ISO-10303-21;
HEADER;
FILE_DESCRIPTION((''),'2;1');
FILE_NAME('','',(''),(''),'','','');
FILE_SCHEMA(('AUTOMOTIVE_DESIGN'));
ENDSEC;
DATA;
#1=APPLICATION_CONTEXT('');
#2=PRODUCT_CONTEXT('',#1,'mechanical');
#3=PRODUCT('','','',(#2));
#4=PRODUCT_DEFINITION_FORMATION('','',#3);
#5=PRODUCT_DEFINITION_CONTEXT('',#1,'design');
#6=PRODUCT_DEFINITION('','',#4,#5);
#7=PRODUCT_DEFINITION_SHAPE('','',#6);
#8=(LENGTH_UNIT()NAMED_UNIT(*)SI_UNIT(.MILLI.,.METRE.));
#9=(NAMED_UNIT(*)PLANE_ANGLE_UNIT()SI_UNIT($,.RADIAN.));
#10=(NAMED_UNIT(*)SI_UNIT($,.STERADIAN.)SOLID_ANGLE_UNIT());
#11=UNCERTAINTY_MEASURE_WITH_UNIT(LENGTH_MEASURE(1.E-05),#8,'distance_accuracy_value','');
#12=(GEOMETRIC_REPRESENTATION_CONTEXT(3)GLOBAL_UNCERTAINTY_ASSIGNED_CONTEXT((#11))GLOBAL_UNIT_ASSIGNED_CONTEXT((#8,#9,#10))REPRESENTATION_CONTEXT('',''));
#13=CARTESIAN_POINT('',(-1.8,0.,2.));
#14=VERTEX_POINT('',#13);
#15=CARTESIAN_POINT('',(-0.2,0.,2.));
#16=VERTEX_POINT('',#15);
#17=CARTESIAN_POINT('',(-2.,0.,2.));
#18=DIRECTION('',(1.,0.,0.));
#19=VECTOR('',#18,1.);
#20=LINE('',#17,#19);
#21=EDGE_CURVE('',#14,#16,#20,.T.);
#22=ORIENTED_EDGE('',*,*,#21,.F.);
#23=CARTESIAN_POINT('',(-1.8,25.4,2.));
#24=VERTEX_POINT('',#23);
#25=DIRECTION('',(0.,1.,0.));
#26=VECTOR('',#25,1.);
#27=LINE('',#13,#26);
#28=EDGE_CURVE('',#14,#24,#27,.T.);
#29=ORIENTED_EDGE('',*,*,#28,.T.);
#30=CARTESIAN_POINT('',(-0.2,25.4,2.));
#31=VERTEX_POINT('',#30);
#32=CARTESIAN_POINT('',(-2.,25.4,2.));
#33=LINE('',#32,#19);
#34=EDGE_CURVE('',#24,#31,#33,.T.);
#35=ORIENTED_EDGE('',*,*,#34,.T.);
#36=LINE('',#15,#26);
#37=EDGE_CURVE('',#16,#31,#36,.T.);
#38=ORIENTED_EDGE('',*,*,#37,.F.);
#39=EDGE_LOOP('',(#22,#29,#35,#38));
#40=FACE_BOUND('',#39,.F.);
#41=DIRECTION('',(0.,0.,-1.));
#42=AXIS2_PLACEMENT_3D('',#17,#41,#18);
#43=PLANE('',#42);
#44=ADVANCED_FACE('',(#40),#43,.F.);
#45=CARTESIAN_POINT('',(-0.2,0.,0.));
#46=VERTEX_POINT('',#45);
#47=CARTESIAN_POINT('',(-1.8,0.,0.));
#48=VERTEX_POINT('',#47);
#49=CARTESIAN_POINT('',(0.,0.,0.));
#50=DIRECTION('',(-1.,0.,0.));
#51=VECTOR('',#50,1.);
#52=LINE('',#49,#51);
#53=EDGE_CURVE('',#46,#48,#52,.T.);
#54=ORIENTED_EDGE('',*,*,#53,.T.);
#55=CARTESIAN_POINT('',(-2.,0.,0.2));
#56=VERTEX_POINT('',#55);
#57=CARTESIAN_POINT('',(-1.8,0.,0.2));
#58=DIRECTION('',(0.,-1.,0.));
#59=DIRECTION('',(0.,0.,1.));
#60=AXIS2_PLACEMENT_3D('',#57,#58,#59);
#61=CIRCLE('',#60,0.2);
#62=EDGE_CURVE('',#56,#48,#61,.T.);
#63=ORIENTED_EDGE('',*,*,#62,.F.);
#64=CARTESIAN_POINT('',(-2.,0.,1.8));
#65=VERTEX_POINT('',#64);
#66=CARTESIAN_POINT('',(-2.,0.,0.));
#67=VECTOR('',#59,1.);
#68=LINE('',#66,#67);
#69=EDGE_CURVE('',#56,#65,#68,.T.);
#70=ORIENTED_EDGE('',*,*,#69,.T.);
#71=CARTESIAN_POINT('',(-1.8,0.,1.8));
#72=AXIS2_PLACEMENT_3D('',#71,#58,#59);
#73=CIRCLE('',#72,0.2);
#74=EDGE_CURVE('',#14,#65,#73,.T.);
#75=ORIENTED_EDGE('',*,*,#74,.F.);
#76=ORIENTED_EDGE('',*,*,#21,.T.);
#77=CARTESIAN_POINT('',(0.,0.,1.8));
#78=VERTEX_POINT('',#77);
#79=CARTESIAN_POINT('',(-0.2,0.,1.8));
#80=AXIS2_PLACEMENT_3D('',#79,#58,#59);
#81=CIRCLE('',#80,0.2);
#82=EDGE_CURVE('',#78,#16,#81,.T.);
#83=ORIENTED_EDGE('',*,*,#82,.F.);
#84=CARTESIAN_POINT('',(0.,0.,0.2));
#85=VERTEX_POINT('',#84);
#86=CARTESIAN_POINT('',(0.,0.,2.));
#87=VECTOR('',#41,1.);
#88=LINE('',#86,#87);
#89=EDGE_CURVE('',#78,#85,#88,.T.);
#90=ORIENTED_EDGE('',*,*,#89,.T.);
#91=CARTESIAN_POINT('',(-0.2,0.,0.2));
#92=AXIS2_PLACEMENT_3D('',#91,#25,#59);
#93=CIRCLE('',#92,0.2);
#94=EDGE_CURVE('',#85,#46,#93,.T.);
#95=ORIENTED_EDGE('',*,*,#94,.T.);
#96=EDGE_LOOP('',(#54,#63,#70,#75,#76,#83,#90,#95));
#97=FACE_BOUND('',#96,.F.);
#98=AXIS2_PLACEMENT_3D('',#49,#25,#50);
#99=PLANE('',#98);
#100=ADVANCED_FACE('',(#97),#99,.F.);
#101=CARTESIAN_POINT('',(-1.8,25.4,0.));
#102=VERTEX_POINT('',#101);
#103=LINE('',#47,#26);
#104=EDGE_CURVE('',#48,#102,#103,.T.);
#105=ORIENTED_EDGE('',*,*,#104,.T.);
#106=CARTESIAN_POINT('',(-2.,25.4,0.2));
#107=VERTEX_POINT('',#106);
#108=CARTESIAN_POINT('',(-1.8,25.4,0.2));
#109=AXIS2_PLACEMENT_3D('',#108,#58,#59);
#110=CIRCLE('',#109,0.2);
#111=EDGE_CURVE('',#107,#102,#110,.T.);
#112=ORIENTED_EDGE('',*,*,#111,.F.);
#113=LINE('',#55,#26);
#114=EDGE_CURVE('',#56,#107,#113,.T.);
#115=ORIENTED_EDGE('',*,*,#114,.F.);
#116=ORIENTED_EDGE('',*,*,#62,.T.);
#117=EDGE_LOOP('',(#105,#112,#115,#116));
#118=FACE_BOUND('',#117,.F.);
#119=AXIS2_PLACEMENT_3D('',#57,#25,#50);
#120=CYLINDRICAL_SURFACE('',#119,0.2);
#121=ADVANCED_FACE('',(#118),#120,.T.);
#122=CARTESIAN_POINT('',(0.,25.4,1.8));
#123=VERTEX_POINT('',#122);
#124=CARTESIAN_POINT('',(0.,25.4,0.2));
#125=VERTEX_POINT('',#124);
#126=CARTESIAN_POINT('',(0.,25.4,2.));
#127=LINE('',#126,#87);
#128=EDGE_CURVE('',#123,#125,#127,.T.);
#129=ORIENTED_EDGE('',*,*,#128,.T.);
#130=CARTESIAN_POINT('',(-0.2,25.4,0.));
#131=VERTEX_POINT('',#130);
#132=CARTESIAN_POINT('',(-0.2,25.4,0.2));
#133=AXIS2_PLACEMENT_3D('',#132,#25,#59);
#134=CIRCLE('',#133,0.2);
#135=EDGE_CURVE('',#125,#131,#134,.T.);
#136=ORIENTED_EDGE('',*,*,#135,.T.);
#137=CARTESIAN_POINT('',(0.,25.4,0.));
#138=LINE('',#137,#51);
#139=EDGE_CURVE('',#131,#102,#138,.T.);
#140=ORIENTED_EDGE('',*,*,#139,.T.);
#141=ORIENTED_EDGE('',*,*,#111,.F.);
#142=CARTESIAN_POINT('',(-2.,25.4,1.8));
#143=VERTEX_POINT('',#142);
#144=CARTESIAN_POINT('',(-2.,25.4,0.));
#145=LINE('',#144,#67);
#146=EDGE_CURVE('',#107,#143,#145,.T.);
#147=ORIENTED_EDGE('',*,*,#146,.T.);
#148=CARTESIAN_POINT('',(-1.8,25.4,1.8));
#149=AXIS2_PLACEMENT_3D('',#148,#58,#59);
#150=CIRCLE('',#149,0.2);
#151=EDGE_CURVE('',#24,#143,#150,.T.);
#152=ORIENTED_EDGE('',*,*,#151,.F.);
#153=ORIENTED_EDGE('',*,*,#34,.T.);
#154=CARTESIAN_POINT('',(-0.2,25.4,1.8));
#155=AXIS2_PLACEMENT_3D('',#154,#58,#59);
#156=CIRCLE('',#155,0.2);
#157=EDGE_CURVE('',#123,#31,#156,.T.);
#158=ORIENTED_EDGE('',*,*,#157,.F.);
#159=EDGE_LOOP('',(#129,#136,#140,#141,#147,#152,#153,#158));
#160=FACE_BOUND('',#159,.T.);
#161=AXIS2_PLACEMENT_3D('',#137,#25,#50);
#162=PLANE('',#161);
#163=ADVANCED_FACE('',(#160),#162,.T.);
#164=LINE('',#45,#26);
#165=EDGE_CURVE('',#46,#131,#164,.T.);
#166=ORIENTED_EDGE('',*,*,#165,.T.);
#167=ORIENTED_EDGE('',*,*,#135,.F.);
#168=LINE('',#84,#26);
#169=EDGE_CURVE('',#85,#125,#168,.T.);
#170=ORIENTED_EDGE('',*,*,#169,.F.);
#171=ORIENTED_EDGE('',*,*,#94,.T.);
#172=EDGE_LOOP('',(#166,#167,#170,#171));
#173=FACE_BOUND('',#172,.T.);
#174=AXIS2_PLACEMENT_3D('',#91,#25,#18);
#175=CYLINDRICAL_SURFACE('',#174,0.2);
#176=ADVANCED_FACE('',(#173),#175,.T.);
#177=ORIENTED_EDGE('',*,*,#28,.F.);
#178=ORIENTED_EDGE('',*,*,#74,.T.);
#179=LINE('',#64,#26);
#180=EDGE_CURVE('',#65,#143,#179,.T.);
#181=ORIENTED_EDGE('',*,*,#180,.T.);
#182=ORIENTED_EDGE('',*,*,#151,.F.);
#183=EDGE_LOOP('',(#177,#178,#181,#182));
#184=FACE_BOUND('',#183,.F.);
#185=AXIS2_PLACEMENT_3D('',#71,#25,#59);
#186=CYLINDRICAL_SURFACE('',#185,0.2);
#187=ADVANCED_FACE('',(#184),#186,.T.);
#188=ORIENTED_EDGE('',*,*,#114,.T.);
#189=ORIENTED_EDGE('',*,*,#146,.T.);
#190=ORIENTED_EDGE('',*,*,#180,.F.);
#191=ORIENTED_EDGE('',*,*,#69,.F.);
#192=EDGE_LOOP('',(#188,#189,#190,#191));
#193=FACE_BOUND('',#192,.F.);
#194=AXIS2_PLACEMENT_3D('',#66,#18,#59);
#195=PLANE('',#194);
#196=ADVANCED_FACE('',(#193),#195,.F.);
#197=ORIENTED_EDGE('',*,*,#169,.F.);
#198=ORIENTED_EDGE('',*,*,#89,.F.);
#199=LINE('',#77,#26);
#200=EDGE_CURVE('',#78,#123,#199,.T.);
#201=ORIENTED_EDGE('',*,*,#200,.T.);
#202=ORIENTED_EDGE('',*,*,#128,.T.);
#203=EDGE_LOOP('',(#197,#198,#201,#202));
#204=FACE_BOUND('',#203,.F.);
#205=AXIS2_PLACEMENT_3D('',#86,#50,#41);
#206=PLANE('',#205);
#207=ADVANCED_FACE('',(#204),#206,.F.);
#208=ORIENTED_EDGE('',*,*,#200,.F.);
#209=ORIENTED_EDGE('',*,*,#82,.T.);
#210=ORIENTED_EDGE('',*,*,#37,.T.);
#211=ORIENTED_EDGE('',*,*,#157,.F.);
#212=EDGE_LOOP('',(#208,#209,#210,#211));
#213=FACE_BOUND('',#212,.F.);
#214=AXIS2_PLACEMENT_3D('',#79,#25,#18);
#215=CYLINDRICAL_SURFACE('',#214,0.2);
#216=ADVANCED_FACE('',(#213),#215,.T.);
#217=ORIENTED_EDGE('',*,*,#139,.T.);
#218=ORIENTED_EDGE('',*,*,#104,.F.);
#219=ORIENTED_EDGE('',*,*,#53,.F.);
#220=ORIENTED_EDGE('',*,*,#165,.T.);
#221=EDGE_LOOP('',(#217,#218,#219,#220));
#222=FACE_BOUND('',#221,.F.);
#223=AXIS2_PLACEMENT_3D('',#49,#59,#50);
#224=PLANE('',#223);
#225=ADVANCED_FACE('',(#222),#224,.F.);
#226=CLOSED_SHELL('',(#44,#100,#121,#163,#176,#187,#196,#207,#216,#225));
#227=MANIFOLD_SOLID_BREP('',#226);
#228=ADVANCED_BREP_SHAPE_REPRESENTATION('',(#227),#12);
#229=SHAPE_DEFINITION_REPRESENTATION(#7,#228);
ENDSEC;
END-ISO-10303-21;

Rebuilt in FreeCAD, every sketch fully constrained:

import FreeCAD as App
import Part
import Sketcher
from FreeCAD import Vector
Q = App.Units.Quantity


def edges_at(feature, points):
    """Names of the edges that pass closest to the given points."""
    edges = feature.Shape.Edges
    near = lambda p: min(range(len(edges)), key=lambda i: edges[i].distToShape(Part.Vertex(*p))[0])
    return sorted({f"Edge{near(p) + 1}" for p in points})


def add_polygon(sketch, points):
    """Adds a closed chain of lines whose ends are joined by coincident constraints."""
    first, n = sketch.GeometryCount, len(points)
    for a, b in zip(points, points[1:] + points[:1]):
        sketch.addGeometry(Part.LineSegment(App.Vector(*a, 0), App.Vector(*b, 0)), False)
    for i in range(n):
        sketch.addConstraint(Sketcher.Constraint("Coincident", first + i, 2, first + (i + 1) % n, 1))

doc = App.newDocument("Part")
body = doc.addObject("PartDesign::Body", "Body")

sketch1 = body.newObject("Sketcher::SketchObject", "Sketch")
sketch1.AttachmentSupport = (doc.getObject("XZ_Plane"), [""])
sketch1.MapMode = "FlatFace"
add_polygon(sketch1, [(0, 2), (0, 0), (-2, 0), (-2, 2)])
sketch1.addConstraint([
    Sketcher.Constraint("Vertical", 0),
    Sketcher.Constraint("Horizontal", 1),
    Sketcher.Constraint("Vertical", 2),
    Sketcher.Constraint("Horizontal", 3),
    Sketcher.Constraint("Coincident", 0, 2, -1, 1),
    Sketcher.Constraint("Equal", 3, 0),
    Sketcher.Constraint("DistanceX", 1, 2, 1, 1, Q("2 mm")),
])
pad1 = body.newObject("PartDesign::Pad", "Pad")
pad1.Profile = sketch1
pad1.Length = 25.4
pad1.Reversed = True
doc.recompute()

fillet = body.newObject("PartDesign::Fillet", "Fillet")
fillet.Base = (pad1, edges_at(pad1, [
    (0, 12.7, 2),
    (0, 12.7, 0),
    (-2, 12.7, 2),
    (-2, 12.7, 0),
]))
fillet.Radius = 0.2

doc.recompute()
